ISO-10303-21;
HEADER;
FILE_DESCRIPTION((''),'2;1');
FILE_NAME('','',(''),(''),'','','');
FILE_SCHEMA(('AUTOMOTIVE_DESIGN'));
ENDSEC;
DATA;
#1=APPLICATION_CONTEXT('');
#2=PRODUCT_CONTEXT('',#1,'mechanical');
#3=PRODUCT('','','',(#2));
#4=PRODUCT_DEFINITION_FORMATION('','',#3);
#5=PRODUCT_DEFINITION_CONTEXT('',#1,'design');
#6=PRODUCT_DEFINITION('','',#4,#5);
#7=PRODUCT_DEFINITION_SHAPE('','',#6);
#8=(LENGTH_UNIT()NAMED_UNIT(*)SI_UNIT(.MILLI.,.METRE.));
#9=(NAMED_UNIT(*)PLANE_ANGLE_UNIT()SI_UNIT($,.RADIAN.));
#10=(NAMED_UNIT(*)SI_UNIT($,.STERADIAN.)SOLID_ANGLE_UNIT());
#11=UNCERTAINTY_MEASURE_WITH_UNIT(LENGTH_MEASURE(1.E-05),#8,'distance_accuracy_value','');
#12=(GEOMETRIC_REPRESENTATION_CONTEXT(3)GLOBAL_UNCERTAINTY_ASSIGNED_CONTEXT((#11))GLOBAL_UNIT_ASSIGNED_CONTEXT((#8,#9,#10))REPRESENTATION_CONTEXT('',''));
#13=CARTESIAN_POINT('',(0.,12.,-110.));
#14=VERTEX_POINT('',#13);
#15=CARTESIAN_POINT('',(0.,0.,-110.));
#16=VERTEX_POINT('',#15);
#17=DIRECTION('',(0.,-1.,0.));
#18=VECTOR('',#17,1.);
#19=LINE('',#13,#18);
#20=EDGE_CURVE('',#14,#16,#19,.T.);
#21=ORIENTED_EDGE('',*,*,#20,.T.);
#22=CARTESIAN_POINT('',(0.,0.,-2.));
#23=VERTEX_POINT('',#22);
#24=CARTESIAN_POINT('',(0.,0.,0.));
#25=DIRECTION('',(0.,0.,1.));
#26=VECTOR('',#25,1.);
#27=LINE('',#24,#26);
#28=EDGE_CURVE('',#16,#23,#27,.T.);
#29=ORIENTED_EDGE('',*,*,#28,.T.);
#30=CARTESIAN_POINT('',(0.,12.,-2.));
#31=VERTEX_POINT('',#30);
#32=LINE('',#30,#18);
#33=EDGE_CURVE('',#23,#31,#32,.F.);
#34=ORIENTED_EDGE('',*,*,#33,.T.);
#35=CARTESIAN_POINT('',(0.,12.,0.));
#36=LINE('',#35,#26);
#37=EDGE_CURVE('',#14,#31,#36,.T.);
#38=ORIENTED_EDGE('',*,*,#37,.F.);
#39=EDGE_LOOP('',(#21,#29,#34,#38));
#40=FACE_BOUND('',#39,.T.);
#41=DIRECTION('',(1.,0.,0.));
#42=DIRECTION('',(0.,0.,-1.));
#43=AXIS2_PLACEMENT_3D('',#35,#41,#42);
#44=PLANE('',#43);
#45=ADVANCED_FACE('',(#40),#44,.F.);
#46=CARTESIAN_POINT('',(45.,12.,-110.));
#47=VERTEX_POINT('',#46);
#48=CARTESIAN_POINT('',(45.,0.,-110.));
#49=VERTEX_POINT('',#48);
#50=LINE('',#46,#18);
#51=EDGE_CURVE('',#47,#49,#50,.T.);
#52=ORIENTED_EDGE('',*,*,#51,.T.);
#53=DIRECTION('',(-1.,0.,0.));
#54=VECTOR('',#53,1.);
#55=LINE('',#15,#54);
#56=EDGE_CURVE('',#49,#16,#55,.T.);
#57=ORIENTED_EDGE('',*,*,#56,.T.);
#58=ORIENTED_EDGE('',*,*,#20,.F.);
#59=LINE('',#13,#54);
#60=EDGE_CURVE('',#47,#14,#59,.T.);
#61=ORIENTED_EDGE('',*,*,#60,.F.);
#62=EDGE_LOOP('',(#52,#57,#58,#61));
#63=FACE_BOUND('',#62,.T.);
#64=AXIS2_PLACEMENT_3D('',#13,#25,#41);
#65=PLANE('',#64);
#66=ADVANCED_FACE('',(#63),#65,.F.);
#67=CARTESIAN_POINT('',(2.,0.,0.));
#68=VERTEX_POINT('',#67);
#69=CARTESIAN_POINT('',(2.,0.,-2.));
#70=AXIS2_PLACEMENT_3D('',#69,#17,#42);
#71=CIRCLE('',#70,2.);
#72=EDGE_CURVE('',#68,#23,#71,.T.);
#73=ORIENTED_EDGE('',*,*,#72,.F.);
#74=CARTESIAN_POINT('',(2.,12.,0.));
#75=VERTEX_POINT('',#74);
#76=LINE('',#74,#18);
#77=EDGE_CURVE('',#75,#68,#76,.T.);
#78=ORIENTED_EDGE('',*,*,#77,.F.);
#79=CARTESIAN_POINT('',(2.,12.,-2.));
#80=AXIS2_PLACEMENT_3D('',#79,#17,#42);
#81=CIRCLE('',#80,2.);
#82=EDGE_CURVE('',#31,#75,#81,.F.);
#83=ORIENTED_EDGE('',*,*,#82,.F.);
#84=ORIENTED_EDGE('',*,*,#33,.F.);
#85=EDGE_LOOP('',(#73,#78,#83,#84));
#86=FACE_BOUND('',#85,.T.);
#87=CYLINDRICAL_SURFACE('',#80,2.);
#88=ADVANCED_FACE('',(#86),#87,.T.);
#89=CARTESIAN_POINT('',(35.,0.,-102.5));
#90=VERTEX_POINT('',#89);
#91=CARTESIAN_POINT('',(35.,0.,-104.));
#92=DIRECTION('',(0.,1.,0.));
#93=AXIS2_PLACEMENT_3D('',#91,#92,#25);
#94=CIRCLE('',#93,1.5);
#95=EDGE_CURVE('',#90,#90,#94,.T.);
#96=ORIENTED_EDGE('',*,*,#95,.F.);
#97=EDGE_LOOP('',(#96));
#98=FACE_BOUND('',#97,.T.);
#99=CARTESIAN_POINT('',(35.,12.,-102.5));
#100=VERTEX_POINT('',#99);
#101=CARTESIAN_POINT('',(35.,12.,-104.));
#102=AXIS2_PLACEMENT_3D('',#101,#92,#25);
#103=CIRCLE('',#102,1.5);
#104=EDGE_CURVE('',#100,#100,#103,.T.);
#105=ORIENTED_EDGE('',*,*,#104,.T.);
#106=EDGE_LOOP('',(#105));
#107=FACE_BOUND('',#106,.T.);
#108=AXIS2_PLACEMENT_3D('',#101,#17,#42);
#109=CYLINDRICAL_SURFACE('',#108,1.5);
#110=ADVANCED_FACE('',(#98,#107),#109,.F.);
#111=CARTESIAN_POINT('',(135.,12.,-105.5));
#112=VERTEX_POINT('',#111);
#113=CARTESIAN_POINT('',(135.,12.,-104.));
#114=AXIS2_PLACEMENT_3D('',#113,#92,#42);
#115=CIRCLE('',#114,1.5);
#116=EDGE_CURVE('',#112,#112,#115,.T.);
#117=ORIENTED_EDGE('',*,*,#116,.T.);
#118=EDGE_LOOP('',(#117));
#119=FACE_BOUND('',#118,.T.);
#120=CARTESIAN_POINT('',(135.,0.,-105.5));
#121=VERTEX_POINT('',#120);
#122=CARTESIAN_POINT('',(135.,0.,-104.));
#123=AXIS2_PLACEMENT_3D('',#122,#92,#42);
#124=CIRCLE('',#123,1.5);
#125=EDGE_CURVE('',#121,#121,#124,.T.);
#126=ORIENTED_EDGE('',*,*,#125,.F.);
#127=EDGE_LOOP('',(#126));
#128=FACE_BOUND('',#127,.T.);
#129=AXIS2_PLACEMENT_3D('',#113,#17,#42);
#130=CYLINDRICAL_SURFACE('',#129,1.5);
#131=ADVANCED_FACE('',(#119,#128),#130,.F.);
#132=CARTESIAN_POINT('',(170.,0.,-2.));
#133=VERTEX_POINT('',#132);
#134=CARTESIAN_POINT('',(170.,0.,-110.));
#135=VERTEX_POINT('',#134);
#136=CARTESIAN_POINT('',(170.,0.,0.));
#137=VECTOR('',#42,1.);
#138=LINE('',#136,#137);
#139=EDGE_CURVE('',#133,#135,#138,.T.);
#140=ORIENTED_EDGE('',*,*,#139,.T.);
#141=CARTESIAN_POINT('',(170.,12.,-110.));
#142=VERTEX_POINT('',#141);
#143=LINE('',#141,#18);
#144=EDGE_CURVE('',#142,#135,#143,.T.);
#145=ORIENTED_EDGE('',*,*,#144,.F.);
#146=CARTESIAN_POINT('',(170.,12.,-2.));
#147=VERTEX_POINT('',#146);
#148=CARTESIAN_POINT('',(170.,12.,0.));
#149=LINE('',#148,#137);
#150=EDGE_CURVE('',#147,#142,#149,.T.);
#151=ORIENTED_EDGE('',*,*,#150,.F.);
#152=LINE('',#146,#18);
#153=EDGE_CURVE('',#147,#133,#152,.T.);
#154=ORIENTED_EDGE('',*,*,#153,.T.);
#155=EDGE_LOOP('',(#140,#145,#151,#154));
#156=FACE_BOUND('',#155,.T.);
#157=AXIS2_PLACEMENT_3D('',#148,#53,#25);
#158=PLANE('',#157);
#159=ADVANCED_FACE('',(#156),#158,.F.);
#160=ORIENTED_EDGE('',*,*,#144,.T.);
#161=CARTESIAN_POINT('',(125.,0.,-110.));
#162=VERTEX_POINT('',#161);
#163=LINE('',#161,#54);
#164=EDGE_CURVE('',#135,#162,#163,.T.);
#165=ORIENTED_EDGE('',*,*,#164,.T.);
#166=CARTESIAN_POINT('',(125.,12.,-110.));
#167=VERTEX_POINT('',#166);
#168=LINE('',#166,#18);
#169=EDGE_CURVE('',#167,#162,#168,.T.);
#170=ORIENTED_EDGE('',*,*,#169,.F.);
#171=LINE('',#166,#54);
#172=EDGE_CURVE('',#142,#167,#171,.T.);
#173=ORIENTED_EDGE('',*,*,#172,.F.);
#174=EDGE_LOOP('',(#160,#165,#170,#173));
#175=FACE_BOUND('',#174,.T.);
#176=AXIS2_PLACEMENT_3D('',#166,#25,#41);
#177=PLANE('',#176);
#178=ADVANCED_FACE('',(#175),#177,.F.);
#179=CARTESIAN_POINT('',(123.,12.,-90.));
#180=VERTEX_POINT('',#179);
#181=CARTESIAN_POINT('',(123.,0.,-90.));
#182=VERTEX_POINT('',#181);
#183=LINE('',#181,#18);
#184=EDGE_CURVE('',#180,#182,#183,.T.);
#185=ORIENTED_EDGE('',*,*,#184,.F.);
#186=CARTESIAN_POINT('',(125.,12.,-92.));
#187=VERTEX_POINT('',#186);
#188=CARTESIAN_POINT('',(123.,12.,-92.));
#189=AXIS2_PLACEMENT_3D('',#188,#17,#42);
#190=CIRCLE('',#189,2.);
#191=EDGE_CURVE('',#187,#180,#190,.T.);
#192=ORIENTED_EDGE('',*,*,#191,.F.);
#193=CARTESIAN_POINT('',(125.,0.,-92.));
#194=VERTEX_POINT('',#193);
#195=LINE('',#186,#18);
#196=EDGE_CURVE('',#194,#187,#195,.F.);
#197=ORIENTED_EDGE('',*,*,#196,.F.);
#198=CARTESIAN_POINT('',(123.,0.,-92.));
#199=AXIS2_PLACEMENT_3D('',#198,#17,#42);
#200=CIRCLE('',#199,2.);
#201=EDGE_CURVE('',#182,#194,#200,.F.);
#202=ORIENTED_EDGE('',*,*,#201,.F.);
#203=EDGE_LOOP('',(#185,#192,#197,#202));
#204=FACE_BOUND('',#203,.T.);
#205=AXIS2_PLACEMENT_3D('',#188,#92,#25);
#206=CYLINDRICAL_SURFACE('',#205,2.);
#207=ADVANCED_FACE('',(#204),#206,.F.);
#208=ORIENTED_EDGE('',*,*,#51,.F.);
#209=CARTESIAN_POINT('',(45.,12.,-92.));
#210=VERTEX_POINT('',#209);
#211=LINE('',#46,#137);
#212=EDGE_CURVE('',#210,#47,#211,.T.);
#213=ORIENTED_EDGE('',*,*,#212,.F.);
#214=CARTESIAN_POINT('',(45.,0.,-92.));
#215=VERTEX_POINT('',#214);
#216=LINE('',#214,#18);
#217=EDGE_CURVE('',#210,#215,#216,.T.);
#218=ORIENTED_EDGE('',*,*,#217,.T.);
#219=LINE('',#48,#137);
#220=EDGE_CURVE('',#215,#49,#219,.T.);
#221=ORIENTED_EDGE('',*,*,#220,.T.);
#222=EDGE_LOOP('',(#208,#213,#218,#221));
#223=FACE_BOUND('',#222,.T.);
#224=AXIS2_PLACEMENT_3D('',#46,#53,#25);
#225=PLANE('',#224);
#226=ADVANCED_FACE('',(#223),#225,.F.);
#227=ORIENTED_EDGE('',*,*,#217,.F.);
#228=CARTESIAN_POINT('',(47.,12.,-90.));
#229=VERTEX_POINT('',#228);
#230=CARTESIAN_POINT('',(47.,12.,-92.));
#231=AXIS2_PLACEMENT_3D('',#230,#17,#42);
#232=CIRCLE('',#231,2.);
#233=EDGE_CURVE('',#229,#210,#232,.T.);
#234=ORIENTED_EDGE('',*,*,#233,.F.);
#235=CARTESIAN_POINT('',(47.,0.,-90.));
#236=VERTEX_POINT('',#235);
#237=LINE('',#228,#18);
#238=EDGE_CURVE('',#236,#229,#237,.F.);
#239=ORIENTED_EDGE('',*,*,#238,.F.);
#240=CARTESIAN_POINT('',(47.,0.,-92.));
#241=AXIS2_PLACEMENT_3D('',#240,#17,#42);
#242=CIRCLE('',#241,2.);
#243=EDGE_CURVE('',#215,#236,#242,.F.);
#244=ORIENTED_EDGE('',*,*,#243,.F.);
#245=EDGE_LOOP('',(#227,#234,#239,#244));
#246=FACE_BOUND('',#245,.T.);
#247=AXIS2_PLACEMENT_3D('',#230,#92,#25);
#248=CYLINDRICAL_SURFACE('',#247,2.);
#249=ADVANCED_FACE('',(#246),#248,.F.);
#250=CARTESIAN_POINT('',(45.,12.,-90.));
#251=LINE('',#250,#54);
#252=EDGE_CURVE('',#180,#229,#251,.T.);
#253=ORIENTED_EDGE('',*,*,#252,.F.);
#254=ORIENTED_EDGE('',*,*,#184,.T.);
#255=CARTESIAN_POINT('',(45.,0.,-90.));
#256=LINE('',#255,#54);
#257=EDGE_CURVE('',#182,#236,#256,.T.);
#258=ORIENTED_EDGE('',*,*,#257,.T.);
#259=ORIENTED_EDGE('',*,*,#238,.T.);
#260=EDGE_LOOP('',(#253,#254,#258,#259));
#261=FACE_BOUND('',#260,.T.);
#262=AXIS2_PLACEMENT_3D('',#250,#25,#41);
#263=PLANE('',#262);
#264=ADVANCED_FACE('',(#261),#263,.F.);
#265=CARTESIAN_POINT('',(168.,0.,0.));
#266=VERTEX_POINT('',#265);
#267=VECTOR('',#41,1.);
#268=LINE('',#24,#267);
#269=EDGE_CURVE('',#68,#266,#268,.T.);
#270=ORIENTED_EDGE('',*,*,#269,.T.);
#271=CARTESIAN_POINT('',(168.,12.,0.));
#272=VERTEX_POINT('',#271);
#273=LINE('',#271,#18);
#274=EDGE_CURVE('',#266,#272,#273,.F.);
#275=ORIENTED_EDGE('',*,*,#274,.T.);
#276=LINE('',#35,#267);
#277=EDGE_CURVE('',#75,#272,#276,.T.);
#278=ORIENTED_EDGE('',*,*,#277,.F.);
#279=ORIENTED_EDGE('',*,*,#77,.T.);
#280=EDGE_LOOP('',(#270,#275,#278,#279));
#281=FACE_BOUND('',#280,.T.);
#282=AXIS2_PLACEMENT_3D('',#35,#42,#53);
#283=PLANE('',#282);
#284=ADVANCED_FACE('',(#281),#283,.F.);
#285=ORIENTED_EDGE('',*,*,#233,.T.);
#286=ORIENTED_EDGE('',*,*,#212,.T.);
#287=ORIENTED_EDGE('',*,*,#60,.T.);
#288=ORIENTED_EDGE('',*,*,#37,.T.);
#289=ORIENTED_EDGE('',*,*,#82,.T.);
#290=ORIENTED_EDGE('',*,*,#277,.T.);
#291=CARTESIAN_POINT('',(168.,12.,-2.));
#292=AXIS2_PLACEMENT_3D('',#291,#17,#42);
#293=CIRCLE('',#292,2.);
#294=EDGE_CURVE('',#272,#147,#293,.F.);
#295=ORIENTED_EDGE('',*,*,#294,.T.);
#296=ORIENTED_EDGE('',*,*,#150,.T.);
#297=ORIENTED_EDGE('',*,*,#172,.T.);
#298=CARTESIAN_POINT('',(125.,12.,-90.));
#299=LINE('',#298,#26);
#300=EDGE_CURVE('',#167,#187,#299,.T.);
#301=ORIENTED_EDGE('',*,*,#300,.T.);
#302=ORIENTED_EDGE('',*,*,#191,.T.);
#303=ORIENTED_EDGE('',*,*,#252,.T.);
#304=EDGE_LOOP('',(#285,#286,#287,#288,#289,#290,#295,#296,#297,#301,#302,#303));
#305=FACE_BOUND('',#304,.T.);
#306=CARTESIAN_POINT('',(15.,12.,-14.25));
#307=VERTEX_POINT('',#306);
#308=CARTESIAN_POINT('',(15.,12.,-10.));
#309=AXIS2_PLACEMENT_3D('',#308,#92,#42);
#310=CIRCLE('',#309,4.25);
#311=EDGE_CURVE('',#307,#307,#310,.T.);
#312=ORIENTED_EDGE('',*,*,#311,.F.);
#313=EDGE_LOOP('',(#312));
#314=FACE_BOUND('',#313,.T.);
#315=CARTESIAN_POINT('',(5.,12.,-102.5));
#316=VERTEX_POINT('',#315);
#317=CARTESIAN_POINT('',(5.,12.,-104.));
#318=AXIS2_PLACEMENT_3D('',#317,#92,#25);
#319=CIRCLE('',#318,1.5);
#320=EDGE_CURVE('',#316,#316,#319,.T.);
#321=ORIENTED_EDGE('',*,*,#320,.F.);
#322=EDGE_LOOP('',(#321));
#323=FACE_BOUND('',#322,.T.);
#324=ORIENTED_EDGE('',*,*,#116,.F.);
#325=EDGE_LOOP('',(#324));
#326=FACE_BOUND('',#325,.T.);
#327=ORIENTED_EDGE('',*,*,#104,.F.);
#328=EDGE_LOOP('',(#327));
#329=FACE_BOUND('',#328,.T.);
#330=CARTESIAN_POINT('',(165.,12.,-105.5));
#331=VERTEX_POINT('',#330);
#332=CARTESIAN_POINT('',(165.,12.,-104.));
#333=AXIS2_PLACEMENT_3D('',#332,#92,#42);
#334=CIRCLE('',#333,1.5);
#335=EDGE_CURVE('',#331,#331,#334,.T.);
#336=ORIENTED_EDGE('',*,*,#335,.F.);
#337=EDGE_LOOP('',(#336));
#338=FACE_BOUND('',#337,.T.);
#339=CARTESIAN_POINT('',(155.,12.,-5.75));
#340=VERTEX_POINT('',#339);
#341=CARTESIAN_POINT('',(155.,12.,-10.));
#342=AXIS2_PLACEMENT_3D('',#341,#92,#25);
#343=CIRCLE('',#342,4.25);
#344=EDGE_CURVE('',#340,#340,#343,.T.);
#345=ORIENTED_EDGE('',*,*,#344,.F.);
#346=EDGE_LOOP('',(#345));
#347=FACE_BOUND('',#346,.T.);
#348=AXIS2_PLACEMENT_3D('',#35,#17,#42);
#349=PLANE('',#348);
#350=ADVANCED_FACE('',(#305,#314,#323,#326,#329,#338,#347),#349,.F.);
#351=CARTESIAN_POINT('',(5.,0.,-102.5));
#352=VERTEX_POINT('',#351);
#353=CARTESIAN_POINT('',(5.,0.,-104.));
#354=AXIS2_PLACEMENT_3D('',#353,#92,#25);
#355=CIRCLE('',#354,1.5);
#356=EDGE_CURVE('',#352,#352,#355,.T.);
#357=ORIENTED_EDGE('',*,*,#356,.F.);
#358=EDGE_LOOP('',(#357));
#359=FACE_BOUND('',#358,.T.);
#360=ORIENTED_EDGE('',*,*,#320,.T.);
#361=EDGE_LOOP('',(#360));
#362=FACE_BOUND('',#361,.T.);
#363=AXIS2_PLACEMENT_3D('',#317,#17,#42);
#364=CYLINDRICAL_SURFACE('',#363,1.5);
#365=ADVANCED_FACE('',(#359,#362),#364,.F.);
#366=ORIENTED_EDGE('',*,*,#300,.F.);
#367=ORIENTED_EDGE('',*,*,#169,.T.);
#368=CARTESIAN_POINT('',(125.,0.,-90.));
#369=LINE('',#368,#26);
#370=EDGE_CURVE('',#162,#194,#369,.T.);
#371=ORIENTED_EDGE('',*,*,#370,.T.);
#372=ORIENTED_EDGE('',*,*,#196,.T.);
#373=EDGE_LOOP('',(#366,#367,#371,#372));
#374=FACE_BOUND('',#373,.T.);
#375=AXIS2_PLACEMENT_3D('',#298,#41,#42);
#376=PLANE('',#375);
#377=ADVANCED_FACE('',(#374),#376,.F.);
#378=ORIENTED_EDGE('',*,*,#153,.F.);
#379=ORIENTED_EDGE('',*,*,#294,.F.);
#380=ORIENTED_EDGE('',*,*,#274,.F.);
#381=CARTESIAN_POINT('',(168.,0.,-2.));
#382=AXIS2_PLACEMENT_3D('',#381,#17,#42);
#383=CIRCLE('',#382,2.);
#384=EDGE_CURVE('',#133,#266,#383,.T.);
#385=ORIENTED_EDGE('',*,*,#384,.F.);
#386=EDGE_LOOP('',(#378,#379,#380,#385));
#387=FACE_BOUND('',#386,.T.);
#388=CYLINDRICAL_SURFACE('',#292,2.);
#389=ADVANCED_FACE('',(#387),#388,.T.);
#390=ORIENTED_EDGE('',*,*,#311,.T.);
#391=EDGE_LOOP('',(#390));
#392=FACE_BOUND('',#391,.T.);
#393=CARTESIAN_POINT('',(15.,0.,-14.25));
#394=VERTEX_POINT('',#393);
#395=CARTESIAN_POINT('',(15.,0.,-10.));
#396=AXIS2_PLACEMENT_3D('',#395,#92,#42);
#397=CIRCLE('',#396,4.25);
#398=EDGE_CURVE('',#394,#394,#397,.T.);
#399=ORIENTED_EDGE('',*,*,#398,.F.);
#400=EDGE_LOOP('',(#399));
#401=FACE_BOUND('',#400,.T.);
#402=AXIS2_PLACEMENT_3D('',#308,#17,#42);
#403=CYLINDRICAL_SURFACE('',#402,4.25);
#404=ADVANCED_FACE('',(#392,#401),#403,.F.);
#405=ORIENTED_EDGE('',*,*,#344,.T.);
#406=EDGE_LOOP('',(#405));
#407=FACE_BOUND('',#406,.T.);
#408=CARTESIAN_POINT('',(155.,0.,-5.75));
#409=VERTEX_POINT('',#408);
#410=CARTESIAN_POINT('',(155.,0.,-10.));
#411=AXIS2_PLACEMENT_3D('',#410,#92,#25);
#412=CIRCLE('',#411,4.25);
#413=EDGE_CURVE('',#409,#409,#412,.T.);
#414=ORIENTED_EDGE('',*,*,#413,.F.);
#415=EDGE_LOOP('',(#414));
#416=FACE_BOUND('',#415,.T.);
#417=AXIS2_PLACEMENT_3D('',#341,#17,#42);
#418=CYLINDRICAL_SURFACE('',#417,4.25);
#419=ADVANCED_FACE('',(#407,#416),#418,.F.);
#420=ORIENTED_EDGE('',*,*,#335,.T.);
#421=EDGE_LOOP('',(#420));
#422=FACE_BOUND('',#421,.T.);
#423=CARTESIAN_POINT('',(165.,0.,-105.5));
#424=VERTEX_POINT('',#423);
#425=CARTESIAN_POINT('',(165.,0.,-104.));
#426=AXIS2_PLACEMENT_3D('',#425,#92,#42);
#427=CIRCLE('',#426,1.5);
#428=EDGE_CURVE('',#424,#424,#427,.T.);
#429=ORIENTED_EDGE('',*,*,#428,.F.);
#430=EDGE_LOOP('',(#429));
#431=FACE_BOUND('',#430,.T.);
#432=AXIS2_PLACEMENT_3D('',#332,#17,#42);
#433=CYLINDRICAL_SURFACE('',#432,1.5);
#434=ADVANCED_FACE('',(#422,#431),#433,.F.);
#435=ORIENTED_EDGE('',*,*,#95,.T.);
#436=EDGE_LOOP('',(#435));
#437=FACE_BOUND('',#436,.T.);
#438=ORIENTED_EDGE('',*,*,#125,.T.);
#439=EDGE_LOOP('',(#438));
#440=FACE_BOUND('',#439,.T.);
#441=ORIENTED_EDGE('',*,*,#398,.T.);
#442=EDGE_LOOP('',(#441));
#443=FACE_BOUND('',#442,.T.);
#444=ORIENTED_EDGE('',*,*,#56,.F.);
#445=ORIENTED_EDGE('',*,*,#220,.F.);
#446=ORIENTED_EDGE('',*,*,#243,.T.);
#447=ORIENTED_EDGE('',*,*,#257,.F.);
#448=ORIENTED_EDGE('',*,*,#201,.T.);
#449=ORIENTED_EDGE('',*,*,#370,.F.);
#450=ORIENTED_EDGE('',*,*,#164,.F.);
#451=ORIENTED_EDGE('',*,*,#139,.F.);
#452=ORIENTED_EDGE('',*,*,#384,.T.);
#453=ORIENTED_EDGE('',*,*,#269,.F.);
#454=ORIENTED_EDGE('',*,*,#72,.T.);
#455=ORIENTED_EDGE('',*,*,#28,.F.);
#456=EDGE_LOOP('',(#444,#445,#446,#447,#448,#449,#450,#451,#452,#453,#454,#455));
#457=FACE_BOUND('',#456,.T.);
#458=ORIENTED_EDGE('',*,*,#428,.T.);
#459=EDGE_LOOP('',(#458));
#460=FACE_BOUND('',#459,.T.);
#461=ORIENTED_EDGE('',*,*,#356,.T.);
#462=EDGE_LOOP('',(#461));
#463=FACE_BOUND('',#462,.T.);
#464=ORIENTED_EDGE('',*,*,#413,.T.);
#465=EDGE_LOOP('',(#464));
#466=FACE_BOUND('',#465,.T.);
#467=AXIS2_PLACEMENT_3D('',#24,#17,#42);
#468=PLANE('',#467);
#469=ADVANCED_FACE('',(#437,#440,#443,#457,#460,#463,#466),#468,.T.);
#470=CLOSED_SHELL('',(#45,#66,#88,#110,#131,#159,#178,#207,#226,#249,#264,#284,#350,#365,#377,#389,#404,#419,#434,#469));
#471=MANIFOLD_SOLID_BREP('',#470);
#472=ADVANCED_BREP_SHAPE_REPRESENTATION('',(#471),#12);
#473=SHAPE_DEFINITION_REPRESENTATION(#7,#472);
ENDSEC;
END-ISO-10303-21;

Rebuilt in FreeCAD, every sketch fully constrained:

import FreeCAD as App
import Part
import Sketcher

V = App.Vector
Q = App.Units.Quantity


def edges_at(feature, points):
    """Names of the edges that pass closest to the given points."""
    edges = feature.Shape.Edges
    near = lambda p: min(range(len(edges)), key=lambda i: edges[i].distToShape(Part.Vertex(*p))[0])
    return sorted({f"Edge{near(p) + 1}" for p in points})

doc = App.newDocument("Part")
body = doc.addObject("PartDesign::Body", "Body")

# Sketch on XZ plane
sketch1 = body.newObject("Sketcher::SketchObject", "Sketch")
sketch1.AttachmentSupport = (doc.getObject("XZ_Plane"), [""])
sketch1.MapMode = "FlatFace"
sketch1.addGeometry(Part.LineSegment(V(0, 0, 0), V(170, 0, 0)), False)
sketch1.addGeometry(Part.LineSegment(V(170, 0, 0), V(170, -110, 0)), False)
sketch1.addGeometry(Part.LineSegment(V(170, -110, 0), V(125, -110, 0)), False)
sketch1.addGeometry(Part.LineSegment(V(125, -110, 0), V(125, -90, 0)), False)
sketch1.addGeometry(Part.LineSegment(V(125, -90, 0), V(45, -90, 0)), False)
sketch1.addGeometry(Part.LineSegment(V(45, -90, 0), V(45, -110, 0)), False)
sketch1.addGeometry(Part.LineSegment(V(45, -110, 0), V(0, -110, 0)), False)
sketch1.addGeometry(Part.LineSegment(V(0, -110, 0), V(0, 0, 0)), False)
sketch1.addGeometry(Part.Circle(V(15, -10, 0), V(0, 0, 1), 4.2), False)
sketch1.addGeometry(Part.Circle(V(155, -10, 0), V(0, 0, 1), 4.2), False)
sketch1.addGeometry(Part.Circle(V(5, -104, 0), V(0, 0, 1), 1.5), False)
sketch1.addGeometry(Part.Circle(V(35, -104, 0), V(0, 0, 1), 1.5), False)
sketch1.addGeometry(Part.Circle(V(135, -104, 0), V(0, 0, 1), 1.5), False)
sketch1.addGeometry(Part.Circle(V(165, -104, 0), V(0, 0, 1), 1.5), False)
sketch1.addConstraint(Sketcher.Constraint("Coincident", 0, 2, 1, 1))
sketch1.addConstraint(Sketcher.Constraint("Coincident", 1, 2, 2, 1))
sketch1.addConstraint(Sketcher.Constraint("Coincident", 2, 2, 3, 1))
sketch1.addConstraint(Sketcher.Constraint("Coincident", 3, 2, 4, 1))
sketch1.addConstraint(Sketcher.Constraint("Coincident", 4, 2, 5, 1))
sketch1.addConstraint(Sketcher.Constraint("Coincident", 5, 2, 6, 1))
sketch1.addConstraint(Sketcher.Constraint("Coincident", 6, 2, 7, 1))
sketch1.addConstraint(Sketcher.Constraint("Coincident", 7, 2, 0, 1))
sketch1.addConstraint(Sketcher.Constraint("Horizontal", 0))
sketch1.addConstraint(Sketcher.Constraint("Vertical", 1))
sketch1.addConstraint(Sketcher.Constraint("Horizontal", 2))
sketch1.addConstraint(Sketcher.Constraint("Vertical", 3))
sketch1.addConstraint(Sketcher.Constraint("Horizontal", 4))
sketch1.addConstraint(Sketcher.Constraint("Vertical", 5))
sketch1.addConstraint(Sketcher.Constraint("Horizontal", 6))
sketch1.addConstraint(Sketcher.Constraint("Vertical", 7))
sketch1.addConstraint(Sketcher.Constraint("Coincident", 7, 2, -1, 1))
sketch1.addConstraint(Sketcher.Constraint("Equal", 8, 9))
sketch1.addConstraint(Sketcher.Constraint("Equal", 10, 11))
sketch1.addConstraint(Sketcher.Constraint("Equal", 11, 12))
sketch1.addConstraint(Sketcher.Constraint("Equal", 12, 13))
sketch1.addConstraint(Sketcher.Constraint("Horizontal", 8, 3, 9, 3))
sketch1.addConstraint(Sketcher.Constraint("Horizontal", 10, 3, 11, 3))
sketch1.addConstraint(Sketcher.Constraint("Horizontal", 11, 3, 12, 3))
sketch1.addConstraint(Sketcher.Constraint("Horizontal", 12, 3, 13, 3))
sketch1.addConstraint(Sketcher.Constraint("Horizontal", 2, 2, 5, 2))
sketch1.addConstraint(Sketcher.Constraint("Equal", 2, 6))
sketch1.addConstraint(Sketcher.Constraint("Diameter", 10, Q("3 mm")))
sketch1.addConstraint(Sketcher.Constraint("Diameter", 8, Q("8.5 mm")))
sketch1.addConstraint(Sketcher.Constraint("DistanceX", 0, 1, 0, 2, Q("170 mm")))
sketch1.addConstraint(Sketcher.Constraint("DistanceX", 2, 2, 2, 1, Q("45 mm")))
sketch1.addConstraint(Sketcher.Constraint("DistanceY", 1, 2, 1, 1, Q("110 mm")))
sketch1.addConstraint(Sketcher.Constraint("DistanceY", 3, 1, 3, 2, Q("20 mm")))
sketch1.addConstraint(Sketcher.Constraint("DistanceX", -1, 1, 8, 3, Q("15 mm")))
sketch1.addConstraint(Sketcher.Constraint("DistanceY", 8, 3, -1, 1, Q("10 mm")))
sketch1.addConstraint(Sketcher.Constraint("DistanceX", -1, 1, 9, 3, Q("155 mm")))
sketch1.addConstraint(Sketcher.Constraint("DistanceX", -1, 1, 10, 3, Q("5 mm")))
sketch1.addConstraint(Sketcher.Constraint("DistanceY", 10, 3, -1, 1, Q("104 mm")))
sketch1.addConstraint(Sketcher.Constraint("DistanceX", -1, 1, 11, 3, Q("35 mm")))
sketch1.addConstraint(Sketcher.Constraint("DistanceX", -1, 1, 12, 3, Q("135 mm")))
sketch1.addConstraint(Sketcher.Constraint("DistanceX", -1, 1, 13, 3, Q("165 mm")))
pad1 = body.newObject("PartDesign::Pad", "Pad")
pad1.Profile = sketch1
pad1.Length = 12
pad1.Reversed = True
doc.recompute()

fillet = body.newObject("PartDesign::Fillet", "Fillet")
fillet.Base = (pad1, edges_at(pad1, [
    (45, 6, -90),
    (125, 6, -90),
    (170, 6, 0),
    (0, 6, 0),
]))
fillet.Radius = 2

doc.recompute()
